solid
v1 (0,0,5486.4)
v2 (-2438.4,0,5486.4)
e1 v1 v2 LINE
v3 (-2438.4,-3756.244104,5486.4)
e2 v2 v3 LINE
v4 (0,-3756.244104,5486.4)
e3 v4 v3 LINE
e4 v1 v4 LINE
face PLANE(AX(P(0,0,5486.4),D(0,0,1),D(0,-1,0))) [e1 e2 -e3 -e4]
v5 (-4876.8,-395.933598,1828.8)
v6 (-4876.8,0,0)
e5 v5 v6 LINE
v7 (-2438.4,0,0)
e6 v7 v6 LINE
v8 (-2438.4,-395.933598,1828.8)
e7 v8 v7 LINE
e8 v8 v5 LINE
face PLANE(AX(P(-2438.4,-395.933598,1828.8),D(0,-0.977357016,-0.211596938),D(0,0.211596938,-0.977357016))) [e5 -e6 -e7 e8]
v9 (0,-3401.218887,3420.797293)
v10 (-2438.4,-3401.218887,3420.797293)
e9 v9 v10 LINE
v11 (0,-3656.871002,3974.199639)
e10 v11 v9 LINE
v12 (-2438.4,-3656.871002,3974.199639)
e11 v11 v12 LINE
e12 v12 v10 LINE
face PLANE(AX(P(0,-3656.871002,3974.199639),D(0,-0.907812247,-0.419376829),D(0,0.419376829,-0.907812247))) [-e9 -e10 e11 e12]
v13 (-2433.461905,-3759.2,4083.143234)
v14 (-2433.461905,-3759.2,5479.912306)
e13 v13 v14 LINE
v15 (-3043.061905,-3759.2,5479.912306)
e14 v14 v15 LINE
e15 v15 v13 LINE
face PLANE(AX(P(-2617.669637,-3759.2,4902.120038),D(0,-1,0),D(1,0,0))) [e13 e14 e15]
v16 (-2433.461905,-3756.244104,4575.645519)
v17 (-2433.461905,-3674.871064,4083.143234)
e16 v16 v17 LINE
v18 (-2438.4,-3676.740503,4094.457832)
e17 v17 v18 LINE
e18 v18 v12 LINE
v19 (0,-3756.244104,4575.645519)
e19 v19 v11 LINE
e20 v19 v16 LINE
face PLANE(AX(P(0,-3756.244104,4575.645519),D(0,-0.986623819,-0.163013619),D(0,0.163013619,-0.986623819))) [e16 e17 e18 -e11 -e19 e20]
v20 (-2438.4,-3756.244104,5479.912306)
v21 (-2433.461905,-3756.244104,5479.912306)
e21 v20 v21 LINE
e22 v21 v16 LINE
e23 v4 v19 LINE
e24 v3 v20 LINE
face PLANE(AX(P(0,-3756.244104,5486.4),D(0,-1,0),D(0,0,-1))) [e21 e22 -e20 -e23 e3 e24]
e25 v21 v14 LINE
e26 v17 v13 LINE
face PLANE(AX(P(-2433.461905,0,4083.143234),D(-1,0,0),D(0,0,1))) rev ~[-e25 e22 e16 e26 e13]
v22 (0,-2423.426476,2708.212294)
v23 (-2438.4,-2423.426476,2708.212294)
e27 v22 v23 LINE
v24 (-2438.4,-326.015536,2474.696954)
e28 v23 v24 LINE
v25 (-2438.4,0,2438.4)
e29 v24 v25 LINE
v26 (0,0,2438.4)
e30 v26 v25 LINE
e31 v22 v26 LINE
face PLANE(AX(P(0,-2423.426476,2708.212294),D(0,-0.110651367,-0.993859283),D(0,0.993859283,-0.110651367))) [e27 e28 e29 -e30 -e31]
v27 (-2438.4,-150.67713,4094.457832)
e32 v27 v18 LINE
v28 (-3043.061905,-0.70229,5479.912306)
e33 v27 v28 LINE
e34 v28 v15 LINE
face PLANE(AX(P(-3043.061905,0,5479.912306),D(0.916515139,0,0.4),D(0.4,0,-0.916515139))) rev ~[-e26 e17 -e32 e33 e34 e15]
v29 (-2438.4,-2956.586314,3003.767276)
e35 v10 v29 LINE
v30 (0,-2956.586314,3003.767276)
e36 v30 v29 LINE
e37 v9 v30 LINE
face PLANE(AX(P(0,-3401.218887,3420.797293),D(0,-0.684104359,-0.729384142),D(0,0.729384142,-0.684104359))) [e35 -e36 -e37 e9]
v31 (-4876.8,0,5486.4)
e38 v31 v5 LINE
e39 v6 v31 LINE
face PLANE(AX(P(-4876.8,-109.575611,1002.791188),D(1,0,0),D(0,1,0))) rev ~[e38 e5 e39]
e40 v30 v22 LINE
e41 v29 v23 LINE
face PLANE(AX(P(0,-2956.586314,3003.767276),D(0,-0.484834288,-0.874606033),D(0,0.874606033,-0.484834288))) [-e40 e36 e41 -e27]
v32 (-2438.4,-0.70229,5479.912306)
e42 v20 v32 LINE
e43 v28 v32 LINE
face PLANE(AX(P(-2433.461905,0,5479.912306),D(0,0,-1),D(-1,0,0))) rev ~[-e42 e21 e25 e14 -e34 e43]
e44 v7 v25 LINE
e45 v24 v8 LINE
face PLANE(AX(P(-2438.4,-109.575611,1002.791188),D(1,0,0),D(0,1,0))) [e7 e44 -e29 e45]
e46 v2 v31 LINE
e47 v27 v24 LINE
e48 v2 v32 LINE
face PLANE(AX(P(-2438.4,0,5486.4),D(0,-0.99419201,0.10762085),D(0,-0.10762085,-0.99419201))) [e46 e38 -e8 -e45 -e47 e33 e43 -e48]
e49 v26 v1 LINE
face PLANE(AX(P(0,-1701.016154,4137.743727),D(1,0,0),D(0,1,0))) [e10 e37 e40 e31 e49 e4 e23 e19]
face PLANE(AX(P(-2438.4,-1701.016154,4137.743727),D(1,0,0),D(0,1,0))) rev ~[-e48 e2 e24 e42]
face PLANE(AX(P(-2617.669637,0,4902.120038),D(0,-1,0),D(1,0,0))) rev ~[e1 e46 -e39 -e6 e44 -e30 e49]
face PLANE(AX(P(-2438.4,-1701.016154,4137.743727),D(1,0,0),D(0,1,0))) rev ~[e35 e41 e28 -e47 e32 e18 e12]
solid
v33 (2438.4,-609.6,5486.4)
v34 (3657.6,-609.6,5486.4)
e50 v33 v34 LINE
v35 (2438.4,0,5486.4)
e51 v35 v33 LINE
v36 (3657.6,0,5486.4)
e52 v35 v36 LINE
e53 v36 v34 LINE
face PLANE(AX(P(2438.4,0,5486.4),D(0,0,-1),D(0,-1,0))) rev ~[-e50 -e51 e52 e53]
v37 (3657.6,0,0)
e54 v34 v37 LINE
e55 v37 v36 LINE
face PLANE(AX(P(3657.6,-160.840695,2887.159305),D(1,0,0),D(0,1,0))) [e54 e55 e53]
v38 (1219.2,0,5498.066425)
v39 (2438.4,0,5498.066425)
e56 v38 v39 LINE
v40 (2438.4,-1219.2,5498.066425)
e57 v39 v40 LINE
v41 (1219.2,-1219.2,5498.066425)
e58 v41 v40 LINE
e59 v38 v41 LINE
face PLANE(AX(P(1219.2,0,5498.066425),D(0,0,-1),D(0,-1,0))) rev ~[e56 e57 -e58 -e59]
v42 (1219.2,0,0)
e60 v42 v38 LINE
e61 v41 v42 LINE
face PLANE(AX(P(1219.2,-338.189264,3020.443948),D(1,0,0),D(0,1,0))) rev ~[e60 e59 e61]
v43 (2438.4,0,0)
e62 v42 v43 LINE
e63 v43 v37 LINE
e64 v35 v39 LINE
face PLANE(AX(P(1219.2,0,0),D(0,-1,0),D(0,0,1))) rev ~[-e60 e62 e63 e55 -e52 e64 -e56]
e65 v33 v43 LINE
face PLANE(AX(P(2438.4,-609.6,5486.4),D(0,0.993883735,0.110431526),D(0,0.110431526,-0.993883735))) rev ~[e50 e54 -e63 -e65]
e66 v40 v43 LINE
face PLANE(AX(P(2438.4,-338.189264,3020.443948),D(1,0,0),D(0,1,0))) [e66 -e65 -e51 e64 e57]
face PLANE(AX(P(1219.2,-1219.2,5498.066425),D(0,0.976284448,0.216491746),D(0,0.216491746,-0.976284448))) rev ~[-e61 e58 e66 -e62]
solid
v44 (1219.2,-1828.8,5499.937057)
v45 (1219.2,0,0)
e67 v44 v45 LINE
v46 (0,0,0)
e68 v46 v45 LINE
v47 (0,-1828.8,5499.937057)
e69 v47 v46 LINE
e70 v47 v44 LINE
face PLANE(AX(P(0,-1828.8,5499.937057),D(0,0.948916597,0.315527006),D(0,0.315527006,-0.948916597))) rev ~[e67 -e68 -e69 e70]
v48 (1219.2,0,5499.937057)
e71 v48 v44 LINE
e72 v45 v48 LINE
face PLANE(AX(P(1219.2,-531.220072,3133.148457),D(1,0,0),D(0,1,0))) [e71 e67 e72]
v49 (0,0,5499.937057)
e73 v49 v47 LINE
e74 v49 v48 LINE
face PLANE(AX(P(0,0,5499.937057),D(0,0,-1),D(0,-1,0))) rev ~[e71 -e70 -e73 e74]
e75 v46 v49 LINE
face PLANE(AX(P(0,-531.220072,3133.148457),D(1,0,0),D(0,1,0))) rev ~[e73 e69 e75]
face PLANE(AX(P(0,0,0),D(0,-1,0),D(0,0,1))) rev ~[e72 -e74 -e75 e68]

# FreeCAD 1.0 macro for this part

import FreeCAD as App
import Part
import Sketcher

V = App.Vector
Q = App.Units.Quantity

doc = App.newDocument("Part")
body = doc.addObject("PartDesign::Body", "Body")

# Sketch on YZ plane
sketch1 = body.newObject("Sketcher::SketchObject", "Sketch")
sketch1.AttachmentSupport = (doc.getObject("YZ_Plane"), [""])
sketch1.MapMode = "FlatFace"
sketch1.AttachmentOffset = App.Placement(V(0, 0, 96 * 25.4), App.Rotation())
sketch1.addGeometry(Part.LineSegment(V(-610, 5486, 0), V(0, 0, 0)), False)
sketch1.addGeometry(Part.LineSegment(V(0, 0, 0), V(0, 5486, 0)), False)
sketch1.addGeometry(Part.LineSegment(V(0, 5486, 0), V(-610, 5486, 0)), False)
sketch1.addConstraint(Sketcher.Constraint("Coincident", 0, 2, 1, 1))
sketch1.addConstraint(Sketcher.Constraint("Coincident", 1, 2, 2, 1))
sketch1.addConstraint(Sketcher.Constraint("Coincident", 2, 2, 0, 1))
sketch1.addConstraint(Sketcher.Constraint("Vertical", 1))
sketch1.addConstraint(Sketcher.Constraint("Horizontal", 2))
sketch1.addConstraint(Sketcher.Constraint("Coincident", 0, 2, -1, 1))
sketch1.addConstraint(Sketcher.Constraint("DistanceX", 2, 2, 2, 1, Q("24 in")))
sketch1.addConstraint(Sketcher.Constraint("DistanceY", 1, 1, 1, 2, Q("216 in")))
pad1 = body.newObject("PartDesign::Pad", "Pad")
pad1.Profile = sketch1
pad1.Length = Q("48 in")

# Sketch on YZ plane
sketch2 = body.newObject("Sketcher::SketchObject", "Sketch001")
sketch2.AttachmentSupport = (doc.getObject("YZ_Plane"), [""])
sketch2.MapMode = "FlatFace"
sketch2.AttachmentOffset = App.Placement(V(0, 0, 48 * 25.4), App.Rotation())
sketch2.addGeometry(Part.LineSegment(V(0, 0, 0), V(0, 5498, 0)), False)
sketch2.addGeometry(Part.LineSegment(V(0, 5498, 0), V(-1219, 5498, 0)), False)
sketch2.addGeometry(Part.LineSegment(V(-1219, 5498, 0), V(0, 0, 0)), False)
sketch2.addConstraint(Sketcher.Constraint("Coincident", 0, 2, 1, 1))
sketch2.addConstraint(Sketcher.Constraint("Coincident", 1, 2, 2, 1))
sketch2.addConstraint(Sketcher.Constraint("Coincident", 2, 2, 0, 1))
sketch2.addConstraint(Sketcher.Constraint("Vertical", 0))
sketch2.addConstraint(Sketcher.Constraint("Horizontal", 1))
sketch2.addConstraint(Sketcher.Constraint("Coincident", 2, 2, -1, 1))
sketch2.addConstraint(Sketcher.Constraint("DistanceX", 1, 2, 1, 1, Q("48 in")))
sketch2.addConstraint(Sketcher.Constraint("DistanceY", 0, 1, 0, 2, 5498.066425))
pad2 = body.newObject("PartDesign::Pad", "Pad001")
pad2.Profile = sketch2
pad2.Length = Q("48 in")
body2 = doc.addObject("PartDesign::Body", "Body001")

# Sketch on YZ plane
sketch3 = body2.newObject("Sketcher::SketchObject", "Sketch002")
sketch3.AttachmentSupport = (doc.getObject("YZ_Plane001"), [""])
sketch3.MapMode = "FlatFace"
sketch3.addGeometry(Part.LineSegment(V(-2423, 2708, 0), V(0, 2438, 0)), False)
sketch3.addGeometry(Part.LineSegment(V(0, 2438, 0), V(0, 5486, 0)), False)
sketch3.addGeometry(Part.LineSegment(V(0, 5486, 0), V(-3756, 5486, 0)), False)
sketch3.addGeometry(Part.LineSegment(V(-3756, 5486, 0), V(-3756, 4576, 0)), False)
sketch3.addGeometry(Part.LineSegment(V(-3756, 4576, 0), V(-3657, 3974, 0)), False)
sketch3.addGeometry(Part.LineSegment(V(-3657, 3974, 0), V(-3401, 3421, 0)), False)
sketch3.addGeometry(Part.LineSegment(V(-3401, 3421, 0), V(-2957, 3004, 0)), False)
sketch3.addGeometry(Part.LineSegment(V(-2957, 3004, 0), V(-2423, 2708, 0)), False)
sketch3.addConstraint(Sketcher.Constraint("Coincident", 0, 2, 1, 1))
sketch3.addConstraint(Sketcher.Constraint("Coincident", 1, 2, 2, 1))
sketch3.addConstraint(Sketcher.Constraint("Coincident", 2, 2, 3, 1))
sketch3.addConstraint(Sketcher.Constraint("Coincident", 3, 2, 4, 1))
sketch3.addConstraint(Sketcher.Constraint("Coincident", 4, 2, 5, 1))
sketch3.addConstraint(Sketcher.Constraint("Coincident", 5, 2, 6, 1))
sketch3.addConstraint(Sketcher.Constraint("Coincident", 6, 2, 7, 1))
sketch3.addConstraint(Sketcher.Constraint("Coincident", 7, 2, 0, 1))
sketch3.addConstraint(Sketcher.Constraint("Vertical", 1))
sketch3.addConstraint(Sketcher.Constraint("Horizontal", 2))
sketch3.addConstraint(Sketcher.Constraint("Vertical", 3))
sketch3.addConstraint(Sketcher.Constraint("PointOnObject", 0, 2, -2))
sketch3.addConstraint(Sketcher.Constraint("Equal", 4, 5))
sketch3.addConstraint(Sketcher.Constraint("Equal", 5, 6))
sketch3.addConstraint(Sketcher.Constraint("Equal", 6, 7))
sketch3.addConstraint(Sketcher.Constraint("DistanceY", 1, 1, 1, 2, Q("120 in")))
sketch3.addConstraint(Sketcher.Constraint("Distance", 0, Q("96 in")))
sketch3.addConstraint(Sketcher.Constraint("Distance", 4, Q("24 in")))
sketch3.addConstraint(Sketcher.Constraint("DistanceY", -1, 1, 0, 2, Q("96 in")))
sketch3.addConstraint(Sketcher.Constraint("DistanceY", 3, 2, 3, 1, 910.754481))
sketch3.addConstraint(Sketcher.Constraint("DistanceX", 4, 2, -1, 1, 3656.871002))
sketch3.addConstraint(Sketcher.Constraint("DistanceX", 3, 2, 4, 2, 99.373102))
sketch3.addConstraint(Sketcher.Constraint("DistanceY", 7, 2, 5, 2, 712.584999))
sketch3.addConstraint(Sketcher.Constraint("DistanceX", 3, 2, 6, 2, 799.65779))
pad3 = body2.newObject("PartDesign::Pad", "Pad002")
pad3.Profile = sketch3
pad3.Length = Q("96 in")
pad3.Reversed = True

# Sketch on YZ plane
sketch4 = body2.newObject("Sketcher::SketchObject", "Sketch003")
sketch4.AttachmentSupport = (doc.getObject("YZ_Plane001"), [""])
sketch4.MapMode = "FlatFace"
sketch4.AttachmentOffset = App.Placement(V(0, 0, -96 * 25.4), App.Rotation())
sketch4.addGeometry(Part.LineSegment(V(-396, 1829, 0), V(0, 0, 0)), False)
sketch4.addGeometry(Part.LineSegment(V(0, 0, 0), V(0, 5486, 0)), False)
sketch4.addGeometry(Part.LineSegment(V(0, 5486, 0), V(-396, 1829, 0)), False)
sketch4.addConstraint(Sketcher.Constraint("Coincident", 0, 2, 1, 1))
sketch4.addConstraint(Sketcher.Constraint("Coincident", 1, 2, 2, 1))
sketch4.addConstraint(Sketcher.Constraint("Coincident", 2, 2, 0, 1))
sketch4.addConstraint(Sketcher.Constraint("Vertical", 1))
sketch4.addConstraint(Sketcher.Constraint("Coincident", 0, 2, -1, 1))
sketch4.addConstraint(Sketcher.Constraint("DistanceY", 1, 1, 1, 2, Q("216 in")))
sketch4.addConstraint(Sketcher.Constraint("DistanceY", -1, 1, 2, 2, Q("72 in")))
sketch4.addConstraint(Sketcher.Constraint("DistanceX", 2, 2, -1, 1, 395.933598))
pad4 = body2.newObject("PartDesign::Pad", "Pad003")
pad4.Profile = sketch4
pad4.Length = Q("96 in")
pad4.Reversed = True

# Sketch on XZ plane
sketch5 = body2.newObject("Sketcher::SketchObject", "Sketch004")
sketch5.AttachmentSupport = (doc.getObject("XZ_Plane001"), [""])
sketch5.MapMode = "FlatFace"
sketch5.addGeometry(Part.LineSegment(V(-3043, 5480, 0), V(-2433, 4083, 0)), False)
sketch5.addGeometry(Part.LineSegment(V(-2433, 4083, 0), V(-2433, 5480, 0)), False)
sketch5.addGeometry(Part.LineSegment(V(-2433, 5480, 0), V(-3043, 5480, 0)), False)
sketch5.addConstraint(Sketcher.Constraint("Coincident", 0, 2, 1, 1))
sketch5.addConstraint(Sketcher.Constraint("Coincident", 1, 2, 2, 1))
sketch5.addConstraint(Sketcher.Constraint("Coincident", 2, 2, 0, 1))
sketch5.addConstraint(Sketcher.Constraint("Vertical", 1))
sketch5.addConstraint(Sketcher.Constraint("Horizontal", 2))
sketch5.addConstraint(Sketcher.Constraint("DistanceX", 2, 2, 2, 1, Q("24 in")))
sketch5.addConstraint(Sketcher.Constraint("Distance", 0, Q("60 in")))
sketch5.addConstraint(Sketcher.Constraint("DistanceX", 0, 2, -1, 1, 2433.461905))
sketch5.addConstraint(Sketcher.Constraint("DistanceY", -1, 1, 0, 2, 4083.143234))
pad5 = body2.newObject("PartDesign::Pad", "Pad004")
pad5.Profile = sketch5
pad5.Length = Q("148 in")
body3 = doc.addObject("PartDesign::Body", "Body002")

# Sketch on YZ plane
sketch6 = body3.newObject("Sketcher::SketchObject", "Sketch005")
sketch6.AttachmentSupport = (doc.getObject("YZ_Plane002"), [""])
sketch6.MapMode = "FlatFace"
sketch6.addGeometry(Part.LineSegment(V(0, 0, 0), V(0, 5500, 0)), False)
sketch6.addGeometry(Part.LineSegment(V(0, 5500, 0), V(-1829, 5500, 0)), False)
sketch6.addGeometry(Part.LineSegment(V(-1829, 5500, 0), V(0, 0, 0)), False)
sketch6.addConstraint(Sketcher.Constraint("Coincident", 0, 2, 1, 1))
sketch6.addConstraint(Sketcher.Constraint("Coincident", 1, 2, 2, 1))
sketch6.addConstraint(Sketcher.Constraint("Coincident", 2, 2, 0, 1))
sketch6.addConstraint(Sketcher.Constraint("Vertical", 0))
sketch6.addConstraint(Sketcher.Constraint("Horizontal", 1))
sketch6.addConstraint(Sketcher.Constraint("Coincident", 2, 2, -1, 1))
sketch6.addConstraint(Sketcher.Constraint("DistanceX", 1, 2, 1, 1, Q("72 in")))
sketch6.addConstraint(Sketcher.Constraint("DistanceY", 0, 1, 0, 2, 5499.937057))
pad6 = body3.newObject("PartDesign::Pad", "Pad005")
pad6.Profile = sketch6
pad6.Length = Q("48 in")

doc.recompute()
